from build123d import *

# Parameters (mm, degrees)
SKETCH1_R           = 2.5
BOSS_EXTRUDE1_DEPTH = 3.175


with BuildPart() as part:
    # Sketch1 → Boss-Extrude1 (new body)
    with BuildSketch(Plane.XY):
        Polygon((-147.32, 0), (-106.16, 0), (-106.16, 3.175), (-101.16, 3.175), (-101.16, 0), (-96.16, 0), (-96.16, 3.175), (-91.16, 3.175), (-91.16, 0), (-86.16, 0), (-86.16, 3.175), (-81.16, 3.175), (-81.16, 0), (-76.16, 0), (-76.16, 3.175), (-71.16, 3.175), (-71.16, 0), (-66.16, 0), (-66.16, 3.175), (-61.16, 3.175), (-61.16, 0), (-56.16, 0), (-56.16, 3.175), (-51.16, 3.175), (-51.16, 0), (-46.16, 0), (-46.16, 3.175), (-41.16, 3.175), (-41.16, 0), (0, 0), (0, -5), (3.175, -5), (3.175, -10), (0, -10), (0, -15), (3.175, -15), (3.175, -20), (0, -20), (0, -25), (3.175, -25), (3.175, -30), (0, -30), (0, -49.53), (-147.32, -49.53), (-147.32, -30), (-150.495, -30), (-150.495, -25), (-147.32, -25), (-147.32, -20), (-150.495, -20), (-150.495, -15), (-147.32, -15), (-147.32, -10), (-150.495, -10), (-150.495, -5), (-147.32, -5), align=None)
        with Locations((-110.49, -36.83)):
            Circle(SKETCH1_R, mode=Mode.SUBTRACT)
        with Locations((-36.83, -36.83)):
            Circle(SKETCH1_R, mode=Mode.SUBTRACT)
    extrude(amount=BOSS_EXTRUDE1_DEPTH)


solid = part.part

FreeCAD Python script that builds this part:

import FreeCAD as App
import Part
import Sketcher
from FreeCAD import Vector
Q = App.Units.Quantity

doc = App.newDocument("Part")
body = doc.addObject("PartDesign::Body", "Body")

# Sketch on XY plane
sketch1 = body.newObject("Sketcher::SketchObject", "Sketch")
sketch1.AttachmentSupport = (doc.getObject("XY_Plane"), [""])
sketch1.MapMode = "FlatFace"
sketch1.addGeometry([
    Part.LineSegment(Vector(-106.2, 0, 0), Vector(-147.3, 0, 0)),  # 0
    Part.LineSegment(Vector(-147.3, 0, 0), Vector(-147.3, -5, 0)),  # 1
    Part.LineSegment(Vector(-147.3, -5, 0), Vector(-150.5, -5, 0)),  # 2
    Part.LineSegment(Vector(-150.5, -5, 0), Vector(-150.5, -10, 0)),  # 3
    Part.LineSegment(Vector(-150.5, -10, 0), Vector(-147.3, -10, 0)),  # 4
    Part.LineSegment(Vector(-147.3, -10, 0), Vector(-147.3, -15, 0)),  # 5
    Part.LineSegment(Vector(-147.3, -15, 0), Vector(-150.5, -15, 0)),  # 6
    Part.LineSegment(Vector(-150.5, -15, 0), Vector(-150.5, -20, 0)),  # 7
    Part.LineSegment(Vector(-150.5, -20, 0), Vector(-147.3, -20, 0)),  # 8
    Part.LineSegment(Vector(-147.3, -20, 0), Vector(-147.3, -25, 0)),  # 9
    Part.LineSegment(Vector(-147.3, -25, 0), Vector(-150.5, -25, 0)),  # 10
    Part.LineSegment(Vector(-150.5, -25, 0), Vector(-150.5, -30, 0)),  # 11
    Part.LineSegment(Vector(-150.5, -30, 0), Vector(-147.3, -30, 0)),  # 12
    Part.LineSegment(Vector(-147.3, -30, 0), Vector(-147.3, -49.5, 0)),  # 13
    Part.LineSegment(Vector(-147.3, -49.5, 0), Vector(0, -49.5, 0)),  # 14
    Part.LineSegment(Vector(0, -49.5, 0), Vector(0, -30, 0)),  # 15
    Part.LineSegment(Vector(0, -30, 0), Vector(3.2, -30, 0)),  # 16
    Part.LineSegment(Vector(3.2, -30, 0), Vector(3.2, -25, 0)),  # 17
    Part.LineSegment(Vector(3.2, -25, 0), Vector(0, -25, 0)),  # 18
    Part.LineSegment(Vector(0, -25, 0), Vector(0, -20, 0)),  # 19
    Part.LineSegment(Vector(0, -20, 0), Vector(3.2, -20, 0)),  # 20
    Part.LineSegment(Vector(3.2, -20, 0), Vector(3.2, -15, 0)),  # 21
    Part.LineSegment(Vector(3.2, -15, 0), Vector(0, -15, 0)),  # 22
    Part.LineSegment(Vector(0, -15, 0), Vector(0, -10, 0)),  # 23
    Part.LineSegment(Vector(0, -10, 0), Vector(3.2, -10, 0)),  # 24
    Part.LineSegment(Vector(3.2, -10, 0), Vector(3.2, -5, 0)),  # 25
    Part.LineSegment(Vector(3.2, -5, 0), Vector(0, -5, 0)),  # 26
    Part.LineSegment(Vector(0, -5, 0), Vector(0, 0, 0)),  # 27
    Part.LineSegment(Vector(0, 0, 0), Vector(-41.2, 0, 0)),  # 28
    Part.LineSegment(Vector(-41.2, 0, 0), Vector(-41.2, 3.2, 0)),  # 29
    Part.LineSegment(Vector(-41.2, 3.2, 0), Vector(-46.2, 3.2, 0)),  # 30
    Part.LineSegment(Vector(-46.2, 3.2, 0), Vector(-46.2, 0, 0)),  # 31
    Part.LineSegment(Vector(-46.2, 0, 0), Vector(-51.2, 0, 0)),  # 32
    Part.LineSegment(Vector(-51.2, 0, 0), Vector(-51.2, 3.2, 0)),  # 33
    Part.LineSegment(Vector(-51.2, 3.2, 0), Vector(-56.2, 3.2, 0)),  # 34
    Part.LineSegment(Vector(-56.2, 3.2, 0), Vector(-56.2, 0, 0)),  # 35
    Part.LineSegment(Vector(-56.2, 0, 0), Vector(-61.2, 0, 0)),  # 36
    Part.LineSegment(Vector(-61.2, 0, 0), Vector(-61.2, 3.2, 0)),  # 37
    Part.LineSegment(Vector(-61.2, 3.2, 0), Vector(-66.2, 3.2, 0)),  # 38
    Part.LineSegment(Vector(-66.2, 3.2, 0), Vector(-66.2, 0, 0)),  # 39
    Part.LineSegment(Vector(-66.2, 0, 0), Vector(-71.2, 0, 0)),  # 40
    Part.LineSegment(Vector(-71.2, 0, 0), Vector(-71.2, 3.2, 0)),  # 41
    Part.LineSegment(Vector(-71.2, 3.2, 0), Vector(-76.2, 3.2, 0)),  # 42
    Part.LineSegment(Vector(-76.2, 3.2, 0), Vector(-76.2, 0, 0)),  # 43
    Part.LineSegment(Vector(-76.2, 0, 0), Vector(-81.2, 0, 0)),  # 44
    Part.LineSegment(Vector(-81.2, 0, 0), Vector(-81.2, 3.2, 0)),  # 45
    Part.LineSegment(Vector(-81.2, 3.2, 0), Vector(-86.2, 3.2, 0)),  # 46
    Part.LineSegment(Vector(-86.2, 3.2, 0), Vector(-86.2, 0, 0)),  # 47
    Part.LineSegment(Vector(-86.2, 0, 0), Vector(-91.2, 0, 0)),  # 48
    Part.LineSegment(Vector(-91.2, 0, 0), Vector(-91.2, 3.2, 0)),  # 49
    Part.LineSegment(Vector(-91.2, 3.2, 0), Vector(-96.2, 3.2, 0)),  # 50
    Part.LineSegment(Vector(-96.2, 3.2, 0), Vector(-96.2, 0, 0)),  # 51
    Part.LineSegment(Vector(-96.2, 0, 0), Vector(-101.2, 0, 0)),  # 52
    Part.LineSegment(Vector(-101.2, 0, 0), Vector(-101.2, 3.2, 0)),  # 53
    Part.LineSegment(Vector(-101.2, 3.2, 0), Vector(-106.2, 3.2, 0)),  # 54
    Part.LineSegment(Vector(-106.2, 3.2, 0), Vector(-106.2, 0, 0)),  # 55
    Part.Circle(Vector(-36.8, -36.8, 0), Vector(0, 0, 1), 2.5),  # 56
    Part.Circle(Vector(-110.5, -36.8, 0), Vector(0, 0, 1), 2.5),  # 57
], False)
sketch1.addConstraint([
    Sketcher.Constraint("Coincident", 0, 2, 1, 1),
    Sketcher.Constraint("Coincident", 1, 2, 2, 1),
    Sketcher.Constraint("Coincident", 2, 2, 3, 1),
    Sketcher.Constraint("Coincident", 3, 2, 4, 1),
    Sketcher.Constraint("Coincident", 4, 2, 5, 1),
    Sketcher.Constraint("Coincident", 5, 2, 6, 1),
    Sketcher.Constraint("Coincident", 6, 2, 7, 1),
    Sketcher.Constraint("Coincident", 7, 2, 8, 1),
    Sketcher.Constraint("Coincident", 8, 2, 9, 1),
    Sketcher.Constraint("Coincident", 9, 2, 10, 1),
    Sketcher.Constraint("Coincident", 10, 2, 11, 1),
    Sketcher.Constraint("Coincident", 11, 2, 12, 1),
    Sketcher.Constraint("Coincident", 12, 2, 13, 1),
    Sketcher.Constraint("Coincident", 13, 2, 14, 1),
    Sketcher.Constraint("Coincident", 14, 2, 15, 1),
    Sketcher.Constraint("Coincident", 15, 2, 16, 1),
    Sketcher.Constraint("Coincident", 16, 2, 17, 1),
    Sketcher.Constraint("Coincident", 17, 2, 18, 1),
    Sketcher.Constraint("Coincident", 18, 2, 19, 1),
    Sketcher.Constraint("Coincident", 19, 2, 20, 1),
    Sketcher.Constraint("Coincident", 20, 2, 21, 1),
    Sketcher.Constraint("Coincident", 21, 2, 22, 1),
    Sketcher.Constraint("Coincident", 22, 2, 23, 1),
    Sketcher.Constraint("Coincident", 23, 2, 24, 1),
    Sketcher.Constraint("Coincident", 24, 2, 25, 1),
    Sketcher.Constraint("Coincident", 25, 2, 26, 1),
    Sketcher.Constraint("Coincident", 26, 2, 27, 1),
    Sketcher.Constraint("Coincident", 27, 2, 28, 1),
    Sketcher.Constraint("Coincident", 28, 2, 29, 1),
    Sketcher.Constraint("Coincident", 29, 2, 30, 1),
    Sketcher.Constraint("Coincident", 30, 2, 31, 1),
    Sketcher.Constraint("Coincident", 31, 2, 32, 1),
    Sketcher.Constraint("Coincident", 32, 2, 33, 1),
    Sketcher.Constraint("Coincident", 33, 2, 34, 1),
    Sketcher.Constraint("Coincident", 34, 2, 35, 1),
    Sketcher.Constraint("Coincident", 35, 2, 36, 1),
    Sketcher.Constraint("Coincident", 36, 2, 37, 1),
    Sketcher.Constraint("Coincident", 37, 2, 38, 1),
    Sketcher.Constraint("Coincident", 38, 2, 39, 1),
    Sketcher.Constraint("Coincident", 39, 2, 40, 1),
    Sketcher.Constraint("Coincident", 40, 2, 41, 1),
    Sketcher.Constraint("Coincident", 41, 2, 42, 1),
    Sketcher.Constraint("Coincident", 42, 2, 43, 1),
    Sketcher.Constraint("Coincident", 43, 2, 44, 1),
    Sketcher.Constraint("Coincident", 44, 2, 45, 1),
    Sketcher.Constraint("Coincident", 45, 2, 46, 1),
    Sketcher.Constraint("Coincident", 46, 2, 47, 1),
    Sketcher.Constraint("Coincident", 47, 2, 48, 1),
    Sketcher.Constraint("Coincident", 48, 2, 49, 1),
    Sketcher.Constraint("Coincident", 49, 2, 50, 1),
    Sketcher.Constraint("Coincident", 50, 2, 51, 1),
    Sketcher.Constraint("Coincident", 51, 2, 52, 1),
    Sketcher.Constraint("Coincident", 52, 2, 53, 1),
    Sketcher.Constraint("Coincident", 53, 2, 54, 1),
    Sketcher.Constraint("Coincident", 54, 2, 55, 1),
    Sketcher.Constraint("Coincident", 55, 2, 0, 1),
    Sketcher.Constraint("Horizontal", 0),
    Sketcher.Constraint("Vertical", 1),
    Sketcher.Constraint("Horizontal", 2),
    Sketcher.Constraint("Vertical", 3),
    Sketcher.Constraint("Horizontal", 4),
    Sketcher.Constraint("Vertical", 5),
    Sketcher.Constraint("Horizontal", 6),
    Sketcher.Constraint("Vertical", 7),
    Sketcher.Constraint("Horizontal", 8),
    Sketcher.Constraint("Vertical", 9),
    Sketcher.Constraint("Horizontal", 10),
    Sketcher.Constraint("Vertical", 11),
    Sketcher.Constraint("Horizontal", 12),
    Sketcher.Constraint("Vertical", 13),
    Sketcher.Constraint("Horizontal", 14),
    Sketcher.Constraint("Vertical", 15),
    Sketcher.Constraint("Horizontal", 16),
    Sketcher.Constraint("Vertical", 17),
    Sketcher.Constraint("Horizontal", 18),
    Sketcher.Constraint("Vertical", 19),
    Sketcher.Constraint("Horizontal", 20),
    Sketcher.Constraint("Vertical", 21),
    Sketcher.Constraint("Horizontal", 22),
    Sketcher.Constraint("Vertical", 23),
    Sketcher.Constraint("Horizontal", 24),
    Sketcher.Constraint("Vertical", 25),
    Sketcher.Constraint("Horizontal", 26),
    Sketcher.Constraint("Vertical", 27),
    Sketcher.Constraint("Horizontal", 28),
    Sketcher.Constraint("Vertical", 29),
    Sketcher.Constraint("Horizontal", 30),
    Sketcher.Constraint("Vertical", 31),
    Sketcher.Constraint("Horizontal", 32),
    Sketcher.Constraint("Vertical", 33),
    Sketcher.Constraint("Horizontal", 34),
    Sketcher.Constraint("Vertical", 35),
    Sketcher.Constraint("Horizontal", 36),
    Sketcher.Constraint("Vertical", 37),
    Sketcher.Constraint("Horizontal", 38),
    Sketcher.Constraint("Vertical", 39),
    Sketcher.Constraint("Horizontal", 40),
    Sketcher.Constraint("Vertical", 41),
    Sketcher.Constraint("Horizontal", 42),
    Sketcher.Constraint("Vertical", 43),
    Sketcher.Constraint("Horizontal", 44),
    Sketcher.Constraint("Vertical", 45),
    Sketcher.Constraint("Horizontal", 46),
    Sketcher.Constraint("Vertical", 47),
    Sketcher.Constraint("Horizontal", 48),
    Sketcher.Constraint("Vertical", 49),
    Sketcher.Constraint("Horizontal", 50),
    Sketcher.Constraint("Vertical", 51),
    Sketcher.Constraint("Horizontal", 52),
    Sketcher.Constraint("Vertical", 53),
    Sketcher.Constraint("Horizontal", 54),
    Sketcher.Constraint("Vertical", 55),
    Sketcher.Constraint("Coincident", 27, 2, -1, 1),
    Sketcher.Constraint("Equal", 56, 57),
    Sketcher.Constraint("PointOnObject", 0, 2, -1),
    Sketcher.Constraint("PointOnObject", 14, 2, -2),
    Sketcher.Constraint("PointOnObject", 18, 2, -2),
    Sketcher.Constraint("PointOnObject", 22, 2, -2),
    Sketcher.Constraint("PointOnObject", 31, 2, -1),
    Sketcher.Constraint("PointOnObject", 35, 2, -1),
    Sketcher.Constraint("PointOnObject", 39, 2, -1),
    Sketcher.Constraint("PointOnObject", 43, 2, -1),
    Sketcher.Constraint("PointOnObject", 47, 2, -1),
    Sketcher.Constraint("PointOnObject", 51, 2, -1),
    Sketcher.Constraint("Horizontal", 56, 3, 57, 3),
    Sketcher.Constraint("Horizontal", 12, 2, 15, 2),
    Sketcher.Constraint("Horizontal", 10, 2, 17, 2),
    Sketcher.Constraint("Horizontal", 8, 2, 19, 2),
    Sketcher.Constraint("Horizontal", 6, 2, 21, 2),
    Sketcher.Constraint("Horizontal", 4, 2, 23, 2),
    Sketcher.Constraint("Horizontal", 2, 2, 25, 2),
    Sketcher.Constraint("Horizontal", 30, 2, 33, 2),
    Sketcher.Constraint("Horizontal", 34, 2, 37, 2),
    Sketcher.Constraint("Horizontal", 38, 2, 41, 2),
    Sketcher.Constraint("Horizontal", 42, 2, 45, 2),
    Sketcher.Constraint("Horizontal", 46, 2, 49, 2),
    Sketcher.Constraint("Horizontal", 50, 2, 53, 2),
    Sketcher.Constraint("Vertical", 1, 2, 4, 2),
    Sketcher.Constraint("Vertical", 3, 2, 6, 2),
    Sketcher.Constraint("Vertical", 5, 2, 8, 2),
    Sketcher.Constraint("Vertical", 7, 2, 10, 2),
    Sketcher.Constraint("Vertical", 9, 2, 12, 2),
    Sketcher.Constraint("Vertical", 17, 2, 20, 2),
    Sketcher.Constraint("Vertical", 21, 2, 24, 2),
    Sketcher.Constraint("Equal", 12, 16),
    Sketcher.Constraint("Equal", 0, 28),
    Sketcher.Constraint("Equal", 30, 32),
    Sketcher.Constraint("Equal", 32, 34),
    Sketcher.Constraint("Equal", 34, 36),
    Sketcher.Constraint("Equal", 36, 38),
    Sketcher.Constraint("Equal", 38, 40),
    Sketcher.Constraint("Equal", 40, 42),
    Sketcher.Constraint("Equal", 42, 44),
    Sketcher.Constraint("Equal", 44, 46),
    Sketcher.Constraint("Equal", 46, 48),
    Sketcher.Constraint("Equal", 48, 50),
    Sketcher.Constraint("Equal", 50, 52),
    Sketcher.Constraint("Equal", 52, 54),
    Sketcher.Constraint("Equal", 54, 1),
    Sketcher.Constraint("Equal", 1, 3),
    Sketcher.Constraint("Equal", 3, 5),
    Sketcher.Constraint("Equal", 5, 7),
    Sketcher.Constraint("Equal", 7, 9),
    Sketcher.Constraint("Equal", 9, 11),
    Sketcher.Constraint("Equal", 26, 29),
    Sketcher.Constraint("DistanceX", 14, 1, 14, 2, Q("5.8 in")),
    Sketcher.Constraint("DistanceX", 57, 3, 56, 3, Q("2.9 in")),
    Sketcher.Constraint("DistanceY", 14, 2, 56, 3, Q("0.5 in")),
    Sketcher.Constraint("Diameter", 56, Q("5 mm")),
    Sketcher.Constraint("DistanceX", 2, 2, 2, 1, Q("0.125 in")),
    Sketcher.Constraint("DistanceX", 56, 3, -1, 1, Q("1.45 in")),
    Sketcher.Constraint("DistanceY", 56, 3, -1, 1, Q("1.45 in")),
    Sketcher.Constraint("DistanceX", 0, 2, 0, 1, Q("41.16 mm")),
])
pad1 = body.newObject("PartDesign::Pad", "Pad")
pad1.Profile = sketch1
pad1.Length = Q("0.125 in")

doc.recompute()
